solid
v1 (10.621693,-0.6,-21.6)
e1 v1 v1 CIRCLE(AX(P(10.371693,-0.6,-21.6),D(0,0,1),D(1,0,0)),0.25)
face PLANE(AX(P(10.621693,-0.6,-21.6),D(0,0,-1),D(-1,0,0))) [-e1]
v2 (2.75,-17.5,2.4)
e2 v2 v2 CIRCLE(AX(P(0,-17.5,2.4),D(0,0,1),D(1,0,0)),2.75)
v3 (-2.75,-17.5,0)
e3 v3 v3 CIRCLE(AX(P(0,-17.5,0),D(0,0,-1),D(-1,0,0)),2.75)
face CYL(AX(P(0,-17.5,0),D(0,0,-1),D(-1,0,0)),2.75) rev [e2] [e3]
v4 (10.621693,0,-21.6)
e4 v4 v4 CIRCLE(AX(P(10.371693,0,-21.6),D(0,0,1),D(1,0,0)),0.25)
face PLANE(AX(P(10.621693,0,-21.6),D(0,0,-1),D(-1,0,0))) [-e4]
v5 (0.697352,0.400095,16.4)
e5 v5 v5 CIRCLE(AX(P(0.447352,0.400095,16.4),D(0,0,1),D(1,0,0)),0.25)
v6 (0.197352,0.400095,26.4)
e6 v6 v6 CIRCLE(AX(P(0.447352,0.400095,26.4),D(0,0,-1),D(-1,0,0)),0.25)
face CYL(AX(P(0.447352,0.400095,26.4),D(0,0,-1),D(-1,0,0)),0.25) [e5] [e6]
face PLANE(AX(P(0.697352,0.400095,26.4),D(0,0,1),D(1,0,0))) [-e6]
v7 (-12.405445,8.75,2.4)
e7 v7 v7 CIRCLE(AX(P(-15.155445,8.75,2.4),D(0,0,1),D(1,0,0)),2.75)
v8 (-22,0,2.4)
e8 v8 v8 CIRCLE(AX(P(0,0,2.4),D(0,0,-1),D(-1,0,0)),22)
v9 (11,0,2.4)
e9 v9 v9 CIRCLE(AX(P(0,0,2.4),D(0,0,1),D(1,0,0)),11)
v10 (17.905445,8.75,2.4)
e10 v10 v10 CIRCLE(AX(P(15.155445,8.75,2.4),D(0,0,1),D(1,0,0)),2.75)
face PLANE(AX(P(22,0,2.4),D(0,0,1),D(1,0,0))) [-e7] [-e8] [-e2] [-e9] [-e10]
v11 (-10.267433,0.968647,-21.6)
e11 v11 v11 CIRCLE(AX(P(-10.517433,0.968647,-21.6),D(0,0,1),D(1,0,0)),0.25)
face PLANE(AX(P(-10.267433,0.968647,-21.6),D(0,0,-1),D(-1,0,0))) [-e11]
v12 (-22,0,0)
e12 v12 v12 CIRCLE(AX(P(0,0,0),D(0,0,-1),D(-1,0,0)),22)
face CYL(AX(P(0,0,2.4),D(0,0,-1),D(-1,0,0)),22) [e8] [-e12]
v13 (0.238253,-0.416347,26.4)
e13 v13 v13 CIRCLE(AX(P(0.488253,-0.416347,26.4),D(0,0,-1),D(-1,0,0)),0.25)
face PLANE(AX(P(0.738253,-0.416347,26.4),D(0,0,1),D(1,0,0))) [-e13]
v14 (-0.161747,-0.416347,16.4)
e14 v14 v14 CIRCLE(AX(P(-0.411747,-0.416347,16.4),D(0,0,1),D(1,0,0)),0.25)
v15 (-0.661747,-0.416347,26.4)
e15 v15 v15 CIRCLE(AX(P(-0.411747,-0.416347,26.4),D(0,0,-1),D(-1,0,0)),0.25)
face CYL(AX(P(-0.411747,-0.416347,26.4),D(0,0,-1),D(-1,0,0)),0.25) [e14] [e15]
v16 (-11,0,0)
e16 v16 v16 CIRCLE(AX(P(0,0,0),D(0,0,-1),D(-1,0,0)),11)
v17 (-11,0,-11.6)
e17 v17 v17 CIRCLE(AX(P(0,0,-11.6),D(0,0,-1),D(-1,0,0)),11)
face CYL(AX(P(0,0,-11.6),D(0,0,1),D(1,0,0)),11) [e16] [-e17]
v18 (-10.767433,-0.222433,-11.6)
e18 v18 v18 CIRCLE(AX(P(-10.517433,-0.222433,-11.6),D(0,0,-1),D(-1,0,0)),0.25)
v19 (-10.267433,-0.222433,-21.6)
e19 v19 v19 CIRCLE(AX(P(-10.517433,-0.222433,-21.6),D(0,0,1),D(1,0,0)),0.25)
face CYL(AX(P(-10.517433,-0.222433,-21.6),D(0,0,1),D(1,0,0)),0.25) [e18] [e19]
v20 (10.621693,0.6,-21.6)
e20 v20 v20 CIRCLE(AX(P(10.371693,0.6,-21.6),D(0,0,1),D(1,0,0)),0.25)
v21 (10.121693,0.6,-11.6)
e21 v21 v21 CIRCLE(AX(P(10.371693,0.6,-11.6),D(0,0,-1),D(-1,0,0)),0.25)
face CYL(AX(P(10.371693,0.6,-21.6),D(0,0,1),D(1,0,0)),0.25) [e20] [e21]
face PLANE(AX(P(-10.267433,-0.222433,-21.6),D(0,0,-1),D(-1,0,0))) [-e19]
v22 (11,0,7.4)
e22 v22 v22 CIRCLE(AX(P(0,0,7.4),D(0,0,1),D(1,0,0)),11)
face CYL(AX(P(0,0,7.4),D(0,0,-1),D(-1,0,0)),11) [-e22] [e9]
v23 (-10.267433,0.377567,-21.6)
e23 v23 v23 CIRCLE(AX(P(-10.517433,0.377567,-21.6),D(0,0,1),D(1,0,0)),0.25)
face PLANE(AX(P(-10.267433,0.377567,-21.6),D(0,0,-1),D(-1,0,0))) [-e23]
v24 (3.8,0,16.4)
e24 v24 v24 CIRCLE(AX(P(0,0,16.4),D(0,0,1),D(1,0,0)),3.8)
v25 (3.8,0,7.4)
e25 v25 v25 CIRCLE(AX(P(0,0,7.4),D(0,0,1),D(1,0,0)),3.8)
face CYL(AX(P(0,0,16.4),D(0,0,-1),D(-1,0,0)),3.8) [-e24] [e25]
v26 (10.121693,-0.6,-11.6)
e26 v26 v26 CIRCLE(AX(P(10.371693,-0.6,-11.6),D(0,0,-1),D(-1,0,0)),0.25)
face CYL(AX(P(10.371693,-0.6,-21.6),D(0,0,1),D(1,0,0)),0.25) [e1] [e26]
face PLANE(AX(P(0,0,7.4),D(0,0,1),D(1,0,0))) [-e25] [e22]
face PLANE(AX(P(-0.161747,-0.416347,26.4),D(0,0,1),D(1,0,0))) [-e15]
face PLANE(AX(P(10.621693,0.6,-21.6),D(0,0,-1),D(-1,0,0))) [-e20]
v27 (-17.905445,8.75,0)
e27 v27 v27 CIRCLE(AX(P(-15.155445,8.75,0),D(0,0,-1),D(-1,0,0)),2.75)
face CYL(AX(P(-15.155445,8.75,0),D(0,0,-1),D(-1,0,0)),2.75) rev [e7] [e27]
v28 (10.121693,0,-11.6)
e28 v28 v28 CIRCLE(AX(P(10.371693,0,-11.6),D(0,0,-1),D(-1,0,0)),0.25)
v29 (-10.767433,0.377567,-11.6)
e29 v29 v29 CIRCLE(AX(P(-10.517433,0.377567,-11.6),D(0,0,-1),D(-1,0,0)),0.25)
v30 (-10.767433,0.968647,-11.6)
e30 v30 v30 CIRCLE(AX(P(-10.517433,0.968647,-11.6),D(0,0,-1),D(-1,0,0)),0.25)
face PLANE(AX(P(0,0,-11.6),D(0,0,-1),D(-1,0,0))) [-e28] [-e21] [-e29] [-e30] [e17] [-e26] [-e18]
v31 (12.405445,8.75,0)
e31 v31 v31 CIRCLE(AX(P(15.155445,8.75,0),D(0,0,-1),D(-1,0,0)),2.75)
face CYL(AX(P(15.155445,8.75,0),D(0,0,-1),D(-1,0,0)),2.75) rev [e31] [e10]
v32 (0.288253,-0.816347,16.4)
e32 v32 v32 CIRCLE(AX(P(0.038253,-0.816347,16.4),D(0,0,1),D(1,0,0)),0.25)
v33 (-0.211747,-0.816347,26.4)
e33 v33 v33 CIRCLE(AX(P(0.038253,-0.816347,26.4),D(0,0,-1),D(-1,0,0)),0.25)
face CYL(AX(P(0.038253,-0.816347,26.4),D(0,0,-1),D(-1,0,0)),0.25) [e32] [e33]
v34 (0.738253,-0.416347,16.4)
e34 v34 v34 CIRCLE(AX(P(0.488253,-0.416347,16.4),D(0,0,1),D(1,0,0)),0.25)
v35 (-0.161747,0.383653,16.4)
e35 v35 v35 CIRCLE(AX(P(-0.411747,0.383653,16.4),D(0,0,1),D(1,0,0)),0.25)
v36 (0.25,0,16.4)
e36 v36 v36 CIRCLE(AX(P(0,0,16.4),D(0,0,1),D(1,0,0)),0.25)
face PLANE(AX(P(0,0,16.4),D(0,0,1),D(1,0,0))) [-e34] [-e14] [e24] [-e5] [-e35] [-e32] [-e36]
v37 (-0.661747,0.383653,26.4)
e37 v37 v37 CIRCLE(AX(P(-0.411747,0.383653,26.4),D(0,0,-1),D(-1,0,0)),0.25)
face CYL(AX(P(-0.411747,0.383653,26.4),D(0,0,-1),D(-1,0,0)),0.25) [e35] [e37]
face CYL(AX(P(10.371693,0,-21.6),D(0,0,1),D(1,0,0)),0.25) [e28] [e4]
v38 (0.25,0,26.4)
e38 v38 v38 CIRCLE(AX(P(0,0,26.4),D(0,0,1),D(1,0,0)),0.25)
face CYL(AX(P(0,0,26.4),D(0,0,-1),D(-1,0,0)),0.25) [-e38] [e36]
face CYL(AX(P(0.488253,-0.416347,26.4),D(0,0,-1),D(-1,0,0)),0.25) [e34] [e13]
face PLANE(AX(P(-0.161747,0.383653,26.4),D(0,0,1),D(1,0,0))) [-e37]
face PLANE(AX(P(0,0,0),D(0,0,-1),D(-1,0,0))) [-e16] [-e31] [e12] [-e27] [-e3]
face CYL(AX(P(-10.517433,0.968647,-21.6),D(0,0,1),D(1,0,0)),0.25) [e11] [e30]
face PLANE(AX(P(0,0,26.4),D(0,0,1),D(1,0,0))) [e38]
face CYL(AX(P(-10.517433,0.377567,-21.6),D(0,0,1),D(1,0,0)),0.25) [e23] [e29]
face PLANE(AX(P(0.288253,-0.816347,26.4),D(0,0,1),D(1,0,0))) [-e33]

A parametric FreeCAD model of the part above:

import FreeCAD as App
import Part
import Sketcher
from FreeCAD import Vector
Q = App.Units.Quantity

doc = App.newDocument("Part")
body = doc.addObject("PartDesign::Body", "Body")

# Sketch on XZ plane
sketch1 = body.newObject("Sketcher::SketchObject", "Sketch")
sketch1.AttachmentSupport = (doc.getObject("XZ_Plane"), [""])
sketch1.MapMode = "FlatFace"
sketch1.addGeometry(Part.LineSegment(Vector(0, 2.4, 0), Vector(0, 0, 0)), False)
sketch1.addGeometry(Part.LineSegment(Vector(0, 0, 0), Vector(22, 0, 0)), False)
sketch1.addGeometry(Part.LineSegment(Vector(22, 0, 0), Vector(22, 2.4, 0)), False)
sketch1.addGeometry(Part.LineSegment(Vector(22, 2.4, 0), Vector(0, 2.4, 0)), False)
sketch1.addConstraint(Sketcher.Constraint("Coincident", 0, 2, 1, 1))
sketch1.addConstraint(Sketcher.Constraint("Coincident", 1, 2, 2, 1))
sketch1.addConstraint(Sketcher.Constraint("Coincident", 2, 2, 3, 1))
sketch1.addConstraint(Sketcher.Constraint("Coincident", 3, 2, 0, 1))
sketch1.addConstraint(Sketcher.Constraint("Vertical", 0))
sketch1.addConstraint(Sketcher.Constraint("Horizontal", 1))
sketch1.addConstraint(Sketcher.Constraint("Vertical", 2))
sketch1.addConstraint(Sketcher.Constraint("Horizontal", 3))
sketch1.addConstraint(Sketcher.Constraint("Coincident", 0, 2, -1, 1))
sketch1.addConstraint(Sketcher.Constraint("DistanceX", 1, 1, 1, 2, Q("22 mm")))
sketch1.addConstraint(Sketcher.Constraint("DistanceY", 0, 2, 0, 1, Q("2.4 mm")))
revolution = body.newObject("PartDesign::Revolution", "Revolution")
revolution.Profile = sketch1
revolution.ReferenceAxis = (sketch1, ["V_Axis"])
revolution.Angle = 360

# Sketch on XY plane
sketch2 = body.newObject("Sketcher::SketchObject", "Sketch001")
sketch2.AttachmentSupport = (doc.getObject("XY_Plane"), [""])
sketch2.MapMode = "FlatFace"
sketch2.AttachmentOffset = App.Placement(Vector(0, 0, 2.4), App.Rotation())
sketch2.addGeometry(Part.Circle(Vector(0, 0, 0), Vector(0, 0, 1), 11), False)
sketch2.addConstraint(Sketcher.Constraint("Coincident", 0, 3, -1, 1))
sketch2.addConstraint(Sketcher.Constraint("Diameter", 0, Q("22 mm")))
pad1 = body.newObject("PartDesign::Pad", "Pad")
pad1.Profile = sketch2
pad1.Length = 5

# Sketch on XY plane
sketch3 = body.newObject("Sketcher::SketchObject", "Sketch002")
sketch3.AttachmentSupport = (doc.getObject("XY_Plane"), [""])
sketch3.MapMode = "FlatFace"
sketch3.AttachmentOffset = App.Placement(Vector(0, 0, 7.4), App.Rotation())
sketch3.addGeometry(Part.Circle(Vector(0, 0, 0), Vector(0, 0, 1), 3.8), False)
sketch3.addConstraint(Sketcher.Constraint("Coincident", 0, 3, -1, 1))
sketch3.addConstraint(Sketcher.Constraint("Diameter", 0, Q("7.6 mm")))
pad2 = body.newObject("PartDesign::Pad", "Pad001")
pad2.Profile = sketch3
pad2.Length = 9

# Sketch on XY plane
sketch4 = body.newObject("Sketcher::SketchObject", "Sketch003")
sketch4.AttachmentSupport = (doc.getObject("XY_Plane"), [""])
sketch4.MapMode = "FlatFace"
sketch4.AttachmentOffset = App.Placement(Vector(0, 0, 16.4), App.Rotation())
sketch4.addGeometry(Part.Circle(Vector(0, 0, 0), Vector(0, 0, 1), 0.25), False)
sketch4.addConstraint(Sketcher.Constraint("Coincident", 0, 3, -1, 1))
sketch4.addConstraint(Sketcher.Constraint("Diameter", 0, Q("0.5 mm")))
pad3 = body.newObject("PartDesign::Pad", "Pad002")
pad3.Profile = sketch4
pad3.Length = 10

# Sketch on XY plane
sketch5 = body.newObject("Sketcher::SketchObject", "Sketch004")
sketch5.AttachmentSupport = (doc.getObject("XY_Plane"), [""])
sketch5.MapMode = "FlatFace"
sketch5.addGeometry(Part.Circle(Vector(0, 0, 0), Vector(0, 0, 1), 11), False)
sketch5.addConstraint(Sketcher.Constraint("Coincident", 0, 3, -1, 1))
sketch5.addConstraint(Sketcher.Constraint("Diameter", 0, Q("22 mm")))
pad4 = body.newObject("PartDesign::Pad", "Pad003")
pad4.Profile = sketch5
pad4.Length = 11.6
pad4.Reversed = True

# Sketch on XZ plane
sketch6 = body.newObject("Sketcher::SketchObject", "Sketch005")
sketch6.AttachmentSupport = (doc.getObject("XZ_Plane"), [""])
sketch6.MapMode = "FlatFace"
sketch6.AttachmentOffset = App.Placement(Vector(0, 0, 0.816347), App.Rotation())
sketch6.addGeometry(Part.LineSegment(Vector(0.04, 26.4, 0), Vector(0.04, 16.4, 0)), False)
sketch6.addGeometry(Part.LineSegment(Vector(0.04, 16.4, 0), Vector(0.29, 16.4, 0)), False)
sketch6.addGeometry(Part.LineSegment(Vector(0.29, 16.4, 0), Vector(0.29, 26.4, 0)), False)
sketch6.addGeometry(Part.LineSegment(Vector(0.29, 26.4, 0), Vector(0.04, 26.4, 0)), False)
sketch6.addGeometry(Part.LineSegment(Vector(0.04, 26.4, 0), Vector(0.04, 16.4, 0)), True)  # axis
sketch6.addConstraint(Sketcher.Constraint("Coincident", 0, 2, 1, 1))
sketch6.addConstraint(Sketcher.Constraint("Coincident", 1, 2, 2, 1))
sketch6.addConstraint(Sketcher.Constraint("Coincident", 2, 2, 3, 1))
sketch6.addConstraint(Sketcher.Constraint("Coincident", 3, 2, 0, 1))
sketch6.addConstraint(Sketcher.Constraint("Vertical", 0))
sketch6.addConstraint(Sketcher.Constraint("Horizontal", 1))
sketch6.addConstraint(Sketcher.Constraint("Vertical", 2))
sketch6.addConstraint(Sketcher.Constraint("Horizontal", 3))
sketch6.addConstraint(Sketcher.Constraint("Vertical", 4))
sketch6.addConstraint(Sketcher.Constraint("Coincident", 4, 1, 3, 2))
sketch6.addConstraint(Sketcher.Constraint("Horizontal", 1, 2, 4, 2))
sketch6.addConstraint(Sketcher.Constraint("DistanceY", 0, 2, 0, 1, Q("10 mm")))
sketch6.addConstraint(Sketcher.Constraint("DistanceX", 1, 1, 1, 2, Q("0.25 mm")))
sketch6.addConstraint(Sketcher.Constraint("DistanceY", -1, 1, 0, 2, Q("16.4 mm")))
sketch6.addConstraint(Sketcher.Constraint("DistanceX", -1, 1, 0, 2, Q("0.038253 mm")))
revolution2 = body.newObject("PartDesign::Revolution", "Revolution001")
revolution2.Profile = sketch6
revolution2.ReferenceAxis = (sketch6, ["Axis0"])
revolution2.Angle = 360

# Sketch on XZ plane
sketch7 = body.newObject("Sketcher::SketchObject", "Sketch006")
sketch7.AttachmentSupport = (doc.getObject("XZ_Plane"), [""])
sketch7.MapMode = "FlatFace"
sketch7.AttachmentOffset = App.Placement(Vector(0, 0, 0.416347), App.Rotation())
sketch7.addGeometry(Part.LineSegment(Vector(0.49, 26.4, 0), Vector(0.49, 16.4, 0)), False)
sketch7.addGeometry(Part.LineSegment(Vector(0.49, 16.4, 0), Vector(0.74, 16.4, 0)), False)
sketch7.addGeometry(Part.LineSegment(Vector(0.74, 16.4, 0), Vector(0.74, 26.4, 0)), False)
sketch7.addGeometry(Part.LineSegment(Vector(0.74, 26.4, 0), Vector(0.49, 26.4, 0)), False)
sketch7.addGeometry(Part.LineSegment(Vector(0.49, 26.4, 0), Vector(0.49, 16.4, 0)), True)  # axis
sketch7.addConstraint(Sketcher.Constraint("Coincident", 0, 2, 1, 1))
sketch7.addConstraint(Sketcher.Constraint("Coincident", 1, 2, 2, 1))
sketch7.addConstraint(Sketcher.Constraint("Coincident", 2, 2, 3, 1))
sketch7.addConstraint(Sketcher.Constraint("Coincident", 3, 2, 0, 1))
sketch7.addConstraint(Sketcher.Constraint("Vertical", 0))
sketch7.addConstraint(Sketcher.Constraint("Horizontal", 1))
sketch7.addConstraint(Sketcher.Constraint("Vertical", 2))
sketch7.addConstraint(Sketcher.Constraint("Horizontal", 3))
sketch7.addConstraint(Sketcher.Constraint("Vertical", 4))
sketch7.addConstraint(Sketcher.Constraint("Coincident", 4, 1, 3, 2))
sketch7.addConstraint(Sketcher.Constraint("Horizontal", 1, 2, 4, 2))
sketch7.addConstraint(Sketcher.Constraint("DistanceY", 0, 2, 0, 1, Q("10 mm")))
sketch7.addConstraint(Sketcher.Constraint("DistanceX", 1, 1, 1, 2, Q("0.25 mm")))
sketch7.addConstraint(Sketcher.Constraint("DistanceY", -1, 1, 0, 2, Q("16.4 mm")))
sketch7.addConstraint(Sketcher.Constraint("DistanceX", -1, 1, 0, 2, Q("0.488253 mm")))
revolution3 = body.newObject("PartDesign::Revolution", "Revolution002")
revolution3.Profile = sketch7
revolution3.ReferenceAxis = (sketch7, ["Axis0"])
revolution3.Angle = 360

# Sketch on XZ plane
sketch8 = body.newObject("Sketcher::SketchObject", "Sketch007")
sketch8.AttachmentSupport = (doc.getObject("XZ_Plane"), [""])
sketch8.MapMode = "FlatFace"
sketch8.AttachmentOffset = App.Placement(Vector(0, 0, -0.383653), App.Rotation())
sketch8.addGeometry(Part.LineSegment(Vector(-0.41, 26.4, 0), Vector(-0.41, 16.4, 0)), False)
sketch8.addGeometry(Part.LineSegment(Vector(-0.41, 16.4, 0), Vector(-0.16, 16.4, 0)), False)
sketch8.addGeometry(Part.LineSegment(Vector(-0.16, 16.4, 0), Vector(-0.16, 26.4, 0)), False)
sketch8.addGeometry(Part.LineSegment(Vector(-0.16, 26.4, 0), Vector(-0.41, 26.4, 0)), False)
sketch8.addGeometry(Part.LineSegment(Vector(-0.41, 26.4, 0), Vector(-0.41, 16.4, 0)), True)  # axis
sketch8.addConstraint(Sketcher.Constraint("Coincident", 0, 2, 1, 1))
sketch8.addConstraint(Sketcher.Constraint("Coincident", 1, 2, 2, 1))
sketch8.addConstraint(Sketcher.Constraint("Coincident", 2, 2, 3, 1))
sketch8.addConstraint(Sketcher.Constraint("Coincident", 3, 2, 0, 1))
sketch8.addConstraint(Sketcher.Constraint("Vertical", 0))
sketch8.addConstraint(Sketcher.Constraint("Horizontal", 1))
sketch8.addConstraint(Sketcher.Constraint("Vertical", 2))
sketch8.addConstraint(Sketcher.Constraint("Horizontal", 3))
sketch8.addConstraint(Sketcher.Constraint("Vertical", 4))
sketch8.addConstraint(Sketcher.Constraint("Coincident", 4, 1, 3, 2))
sketch8.addConstraint(Sketcher.Constraint("Horizontal", 1, 2, 4, 2))
sketch8.addConstraint(Sketcher.Constraint("DistanceY", 0, 2, 0, 1, Q("10 mm")))
sketch8.addConstraint(Sketcher.Constraint("DistanceX", 1, 1, 1, 2, Q("0.25 mm")))
sketch8.addConstraint(Sketcher.Constraint("DistanceY", -1, 1, 0, 2, Q("16.4 mm")))
sketch8.addConstraint(Sketcher.Constraint("DistanceX", 0, 2, -1, 1, Q("0.411747 mm")))
revolution4 = body.newObject("PartDesign::Revolution", "Revolution003")
revolution4.Profile = sketch8
revolution4.ReferenceAxis = (sketch8, ["Axis0"])
revolution4.Angle = 360

# Sketch on XZ plane
sketch9 = body.newObject("Sketcher::SketchObject", "Sketch008")
sketch9.AttachmentSupport = (doc.getObject("XZ_Plane"), [""])
sketch9.MapMode = "FlatFace"
sketch9.AttachmentOffset = App.Placement(Vector(0, 0, -0.400095), App.Rotation())
sketch9.addGeometry(Part.LineSegment(Vector(0.45, 26.4, 0), Vector(0.45, 16.4, 0)), False)
sketch9.addGeometry(Part.LineSegment(Vector(0.45, 16.4, 0), Vector(0.7, 16.4, 0)), False)
sketch9.addGeometry(Part.LineSegment(Vector(0.7, 16.4, 0), Vector(0.7, 26.4, 0)), False)
sketch9.addGeometry(Part.LineSegment(Vector(0.7, 26.4, 0), Vector(0.45, 26.4, 0)), False)
sketch9.addGeometry(Part.LineSegment(Vector(0.45, 26.4, 0), Vector(0.45, 16.4, 0)), True)  # axis
sketch9.addConstraint(Sketcher.Constraint("Coincident", 0, 2, 1, 1))
sketch9.addConstraint(Sketcher.Constraint("Coincident", 1, 2, 2, 1))
sketch9.addConstraint(Sketcher.Constraint("Coincident", 2, 2, 3, 1))
sketch9.addConstraint(Sketcher.Constraint("Coincident", 3, 2, 0, 1))
sketch9.addConstraint(Sketcher.Constraint("Vertical", 0))
sketch9.addConstraint(Sketcher.Constraint("Horizontal", 1))
sketch9.addConstraint(Sketcher.Constraint("Vertical", 2))
sketch9.addConstraint(Sketcher.Constraint("Horizontal", 3))
sketch9.addConstraint(Sketcher.Constraint("Vertical", 4))
sketch9.addConstraint(Sketcher.Constraint("Coincident", 4, 1, 3, 2))
sketch9.addConstraint(Sketcher.Constraint("Horizontal", 1, 2, 4, 2))
sketch9.addConstraint(Sketcher.Constraint("DistanceY", 0, 2, 0, 1, Q("10 mm")))
sketch9.addConstraint(Sketcher.Constraint("DistanceX", 1, 1, 1, 2, Q("0.25 mm")))
sketch9.addConstraint(Sketcher.Constraint("DistanceY", -1, 1, 0, 2, Q("16.4 mm")))
sketch9.addConstraint(Sketcher.Constraint("DistanceX", -1, 1, 0, 2, Q("0.447352 mm")))
revolution5 = body.newObject("PartDesign::Revolution", "Revolution004")
revolution5.Profile = sketch9
revolution5.ReferenceAxis = (sketch9, ["Axis0"])
revolution5.Angle = 360

# Sketch on XZ plane
sketch10 = body.newObject("Sketcher::SketchObject", "Sketch009")
sketch10.AttachmentSupport = (doc.getObject("XZ_Plane"), [""])
sketch10.MapMode = "FlatFace"
sketch10.AttachmentOffset = App.Placement(Vector(0, 0, 0.222433), App.Rotation())
sketch10.addGeometry(Part.LineSegment(Vector(-10.52, -21.6, 0), Vector(-10.52, -11.6, 0)), False)
sketch10.addGeometry(Part.LineSegment(Vector(-10.52, -11.6, 0), Vector(-10.27, -11.6, 0)), False)
sketch10.addGeometry(Part.LineSegment(Vector(-10.27, -11.6, 0), Vector(-10.27, -21.6, 0)), False)
sketch10.addGeometry(Part.LineSegment(Vector(-10.27, -21.6, 0), Vector(-10.52, -21.6, 0)), False)
sketch10.addGeometry(Part.LineSegment(Vector(-10.52, -21.6, 0), Vector(-10.52, -11.6, 0)), True)  # axis
sketch10.addConstraint(Sketcher.Constraint("Coincident", 0, 2, 1, 1))
sketch10.addConstraint(Sketcher.Constraint("Coincident", 1, 2, 2, 1))
sketch10.addConstraint(Sketcher.Constraint("Coincident", 2, 2, 3, 1))
sketch10.addConstraint(Sketcher.Constraint("Coincident", 3, 2, 0, 1))
sketch10.addConstraint(Sketcher.Constraint("Vertical", 0))
sketch10.addConstraint(Sketcher.Constraint("Horizontal", 1))
sketch10.addConstraint(Sketcher.Constraint("Vertical", 2))
sketch10.addConstraint(Sketcher.Constraint("Horizontal", 3))
sketch10.addConstraint(Sketcher.Constraint("Vertical", 4))
sketch10.addConstraint(Sketcher.Constraint("Coincident", 4, 1, 3, 2))
sketch10.addConstraint(Sketcher.Constraint("Horizontal", 1, 2, 4, 2))
sketch10.addConstraint(Sketcher.Constraint("DistanceY", 0, 1, 0, 2, Q("10 mm")))
sketch10.addConstraint(Sketcher.Constraint("DistanceX", 1, 1, 1, 2, Q("0.25 mm")))
sketch10.addConstraint(Sketcher.Constraint("DistanceY", 0, 2, -1, 1, Q("11.6 mm")))
sketch10.addConstraint(Sketcher.Constraint("DistanceX", 0, 2, -1, 1, Q("10.517433 mm")))
revolution6 = body.newObject("PartDesign::Revolution", "Revolution005")
revolution6.Profile = sketch10
revolution6.ReferenceAxis = (sketch10, ["Axis0"])
revolution6.Angle = 360

# Sketch on XZ plane
sketch11 = body.newObject("Sketcher::SketchObject", "Sketch010")
sketch11.AttachmentSupport = (doc.getObject("XZ_Plane"), [""])
sketch11.MapMode = "FlatFace"
sketch11.AttachmentOffset = App.Placement(Vector(0, 0, -0.377567), App.Rotation())
sketch11.addGeometry(Part.LineSegment(Vector(-10.52, -21.6, 0), Vector(-10.52, -11.6, 0)), False)
sketch11.addGeometry(Part.LineSegment(Vector(-10.52, -11.6, 0), Vector(-10.27, -11.6, 0)), False)
sketch11.addGeometry(Part.LineSegment(Vector(-10.27, -11.6, 0), Vector(-10.27, -21.6, 0)), False)
sketch11.addGeometry(Part.LineSegment(Vector(-10.27, -21.6, 0), Vector(-10.52, -21.6, 0)), False)
sketch11.addGeometry(Part.LineSegment(Vector(-10.52, -21.6, 0), Vector(-10.52, -11.6, 0)), True)  # axis
sketch11.addConstraint(Sketcher.Constraint("Coincident", 0, 2, 1, 1))
sketch11.addConstraint(Sketcher.Constraint("Coincident", 1, 2, 2, 1))
sketch11.addConstraint(Sketcher.Constraint("Coincident", 2, 2, 3, 1))
sketch11.addConstraint(Sketcher.Constraint("Coincident", 3, 2, 0, 1))
sketch11.addConstraint(Sketcher.Constraint("Vertical", 0))
sketch11.addConstraint(Sketcher.Constraint("Horizontal", 1))
sketch11.addConstraint(Sketcher.Constraint("Vertical", 2))
sketch11.addConstraint(Sketcher.Constraint("Horizontal", 3))
sketch11.addConstraint(Sketcher.Constraint("Vertical", 4))
sketch11.addConstraint(Sketcher.Constraint("Coincident", 4, 1, 3, 2))
sketch11.addConstraint(Sketcher.Constraint("Horizontal", 1, 2, 4, 2))
sketch11.addConstraint(Sketcher.Constraint("DistanceY", 0, 1, 0, 2, Q("10 mm")))
sketch11.addConstraint(Sketcher.Constraint("DistanceX", 1, 1, 1, 2, Q("0.25 mm")))
sketch11.addConstraint(Sketcher.Constraint("DistanceY", 0, 2, -1, 1, Q("11.6 mm")))
sketch11.addConstraint(Sketcher.Constraint("DistanceX", 0, 2, -1, 1, Q("10.517433 mm")))
revolution7 = body.newObject("PartDesign::Revolution", "Revolution006")
revolution7.Profile = sketch11
revolution7.ReferenceAxis = (sketch11, ["Axis0"])
revolution7.Angle = 360

# Sketch on XZ plane
sketch12 = body.newObject("Sketcher::SketchObject", "Sketch011")
sketch12.AttachmentSupport = (doc.getObject("XZ_Plane"), [""])
sketch12.MapMode = "FlatFace"
sketch12.AttachmentOffset = App.Placement(Vector(0, 0, -0.6), App.Rotation())
sketch12.addGeometry(Part.LineSegment(Vector(10.37, -21.6, 0), Vector(10.37, -11.6, 0)), False)
sketch12.addGeometry(Part.LineSegment(Vector(10.37, -11.6, 0), Vector(10.62, -11.6, 0)), False)
sketch12.addGeometry(Part.LineSegment(Vector(10.62, -11.6, 0), Vector(10.62, -21.6, 0)), False)
sketch12.addGeometry(Part.LineSegment(Vector(10.62, -21.6, 0), Vector(10.37, -21.6, 0)), False)
sketch12.addGeometry(Part.LineSegment(Vector(10.37, -21.6, 0), Vector(10.37, -11.6, 0)), True)  # axis
sketch12.addConstraint(Sketcher.Constraint("Coincident", 0, 2, 1, 1))
sketch12.addConstraint(Sketcher.Constraint("Coincident", 1, 2, 2, 1))
sketch12.addConstraint(Sketcher.Constraint("Coincident", 2, 2, 3, 1))
sketch12.addConstraint(Sketcher.Constraint("Coincident", 3, 2, 0, 1))
sketch12.addConstraint(Sketcher.Constraint("Vertical", 0))
sketch12.addConstraint(Sketcher.Constraint("Horizontal", 1))
sketch12.addConstraint(Sketcher.Constraint("Vertical", 2))
sketch12.addConstraint(Sketcher.Constraint("Horizontal", 3))
sketch12.addConstraint(Sketcher.Constraint("Vertical", 4))
sketch12.addConstraint(Sketcher.Constraint("Coincident", 4, 1, 3, 2))
sketch12.addConstraint(Sketcher.Constraint("Horizontal", 1, 2, 4, 2))
sketch12.addConstraint(Sketcher.Constraint("DistanceY", 0, 1, 0, 2, Q("10 mm")))
sketch12.addConstraint(Sketcher.Constraint("DistanceX", 1, 1, 1, 2, Q("0.25 mm")))
sketch12.addConstraint(Sketcher.Constraint("DistanceY", 0, 2, -1, 1, Q("11.6 mm")))
sketch12.addConstraint(Sketcher.Constraint("DistanceX", -1, 1, 0, 2, Q("10.371693 mm")))
revolution8 = body.newObject("PartDesign::Revolution", "Revolution007")
revolution8.Profile = sketch12
revolution8.ReferenceAxis = (sketch12, ["Axis0"])
revolution8.Angle = 360

# Sketch on XZ plane
sketch13 = body.newObject("Sketcher::SketchObject", "Sketch012")
sketch13.AttachmentSupport = (doc.getObject("XZ_Plane"), [""])
sketch13.MapMode = "FlatFace"
sketch13.addGeometry(Part.LineSegment(Vector(10.37, -21.6, 0), Vector(10.37, -11.6, 0)), False)
sketch13.addGeometry(Part.LineSegment(Vector(10.37, -11.6, 0), Vector(10.62, -11.6, 0)), False)
sketch13.addGeometry(Part.LineSegment(Vector(10.62, -11.6, 0), Vector(10.62, -21.6, 0)), False)
sketch13.addGeometry(Part.LineSegment(Vector(10.62, -21.6, 0), Vector(10.37, -21.6, 0)), False)
sketch13.addGeometry(Part.LineSegment(Vector(10.37, -21.6, 0), Vector(10.37, -11.6, 0)), True)  # axis
sketch13.addConstraint(Sketcher.Constraint("Coincident", 0, 2, 1, 1))
sketch13.addConstraint(Sketcher.Constraint("Coincident", 1, 2, 2, 1))
sketch13.addConstraint(Sketcher.Constraint("Coincident", 2, 2, 3, 1))
sketch13.addConstraint(Sketcher.Constraint("Coincident", 3, 2, 0, 1))
sketch13.addConstraint(Sketcher.Constraint("Vertical", 0))
sketch13.addConstraint(Sketcher.Constraint("Horizontal", 1))
sketch13.addConstraint(Sketcher.Constraint("Vertical", 2))
sketch13.addConstraint(Sketcher.Constraint("Horizontal", 3))
sketch13.addConstraint(Sketcher.Constraint("Vertical", 4))
sketch13.addConstraint(Sketcher.Constraint("Coincident", 4, 1, 3, 2))
sketch13.addConstraint(Sketcher.Constraint("Horizontal", 1, 2, 4, 2))
sketch13.addConstraint(Sketcher.Constraint("DistanceY", 0, 1, 0, 2, Q("10 mm")))
sketch13.addConstraint(Sketcher.Constraint("DistanceX", 1, 1, 1, 2, Q("0.25 mm")))
sketch13.addConstraint(Sketcher.Constraint("DistanceY", 0, 2, -1, 1, Q("11.6 mm")))
sketch13.addConstraint(Sketcher.Constraint("DistanceX", -1, 1, 0, 2, Q("10.371693 mm")))
revolution9 = body.newObject("PartDesign::Revolution", "Revolution008")
revolution9.Profile = sketch13
revolution9.ReferenceAxis = (sketch13, ["Axis0"])
revolution9.Angle = 360

# Sketch on XZ plane
sketch14 = body.newObject("Sketcher::SketchObject", "Sketch013")
sketch14.AttachmentSupport = (doc.getObject("XZ_Plane"), [""])
sketch14.MapMode = "FlatFace"
sketch14.AttachmentOffset = App.Placement(Vector(0, 0, 0.6), App.Rotation())
sketch14.addGeometry(Part.LineSegment(Vector(10.37, -21.6, 0), Vector(10.37, -11.6, 0)), False)
sketch14.addGeometry(Part.LineSegment(Vector(10.37, -11.6, 0), Vector(10.62, -11.6, 0)), False)
sketch14.addGeometry(Part.LineSegment(Vector(10.62, -11.6, 0), Vector(10.62, -21.6, 0)), False)
sketch14.addGeometry(Part.LineSegment(Vector(10.62, -21.6, 0), Vector(10.37, -21.6, 0)), False)
sketch14.addGeometry(Part.LineSegment(Vector(10.37, -21.6, 0), Vector(10.37, -11.6, 0)), True)  # axis
sketch14.addConstraint(Sketcher.Constraint("Coincident", 0, 2, 1, 1))
sketch14.addConstraint(Sketcher.Constraint("Coincident", 1, 2, 2, 1))
sketch14.addConstraint(Sketcher.Constraint("Coincident", 2, 2, 3, 1))
sketch14.addConstraint(Sketcher.Constraint("Coincident", 3, 2, 0, 1))
sketch14.addConstraint(Sketcher.Constraint("Vertical", 0))
sketch14.addConstraint(Sketcher.Constraint("Horizontal", 1))
sketch14.addConstraint(Sketcher.Constraint("Vertical", 2))
sketch14.addConstraint(Sketcher.Constraint("Horizontal", 3))
sketch14.addConstraint(Sketcher.Constraint("Vertical", 4))
sketch14.addConstraint(Sketcher.Constraint("Coincident", 4, 1, 3, 2))
sketch14.addConstraint(Sketcher.Constraint("Horizontal", 1, 2, 4, 2))
sketch14.addConstraint(Sketcher.Constraint("DistanceY", 0, 1, 0, 2, Q("10 mm")))
sketch14.addConstraint(Sketcher.Constraint("DistanceX", 1, 1, 1, 2, Q("0.25 mm")))
sketch14.addConstraint(Sketcher.Constraint("DistanceY", 0, 2, -1, 1, Q("11.6 mm")))
sketch14.addConstraint(Sketcher.Constraint("DistanceX", -1, 1, 0, 2, Q("10.371693 mm")))
revolution10 = body.newObject("PartDesign::Revolution", "Revolution009")
revolution10.Profile = sketch14
revolution10.ReferenceAxis = (sketch14, ["Axis0"])
revolution10.Angle = 360

# Sketch on XZ plane
sketch15 = body.newObject("Sketcher::SketchObject", "Sketch014")
sketch15.AttachmentSupport = (doc.getObject("XZ_Plane"), [""])
sketch15.MapMode = "FlatFace"
sketch15.AttachmentOffset = App.Placement(Vector(0, 0, -0.968647), App.Rotation())
sketch15.addGeometry(Part.LineSegment(Vector(-10.52, -21.6, 0), Vector(-10.52, -11.6, 0)), False)
sketch15.addGeometry(Part.LineSegment(Vector(-10.52, -11.6, 0), Vector(-10.27, -11.6, 0)), False)
sketch15.addGeometry(Part.LineSegment(Vector(-10.27, -11.6, 0), Vector(-10.27, -21.6, 0)), False)
sketch15.addGeometry(Part.LineSegment(Vector(-10.27, -21.6, 0), Vector(-10.52, -21.6, 0)), False)
sketch15.addGeometry(Part.LineSegment(Vector(-10.52, -21.6, 0), Vector(-10.52, -11.6, 0)), True)  # axis
sketch15.addConstraint(Sketcher.Constraint("Coincident", 0, 2, 1, 1))
sketch15.addConstraint(Sketcher.Constraint("Coincident", 1, 2, 2, 1))
sketch15.addConstraint(Sketcher.Constraint("Coincident", 2, 2, 3, 1))
sketch15.addConstraint(Sketcher.Constraint("Coincident", 3, 2, 0, 1))
sketch15.addConstraint(Sketcher.Constraint("Vertical", 0))
sketch15.addConstraint(Sketcher.Constraint("Horizontal", 1))
sketch15.addConstraint(Sketcher.Constraint("Vertical", 2))
sketch15.addConstraint(Sketcher.Constraint("Horizontal", 3))
sketch15.addConstraint(Sketcher.Constraint("Vertical", 4))
sketch15.addConstraint(Sketcher.Constraint("Coincident", 4, 1, 3, 2))
sketch15.addConstraint(Sketcher.Constraint("Horizontal", 1, 2, 4, 2))
sketch15.addConstraint(Sketcher.Constraint("DistanceY", 0, 1, 0, 2, Q("10 mm")))
sketch15.addConstraint(Sketcher.Constraint("DistanceX", 1, 1, 1, 2, Q("0.25 mm")))
sketch15.addConstraint(Sketcher.Constraint("DistanceY", 0, 2, -1, 1, Q("11.6 mm")))
sketch15.addConstraint(Sketcher.Constraint("DistanceX", 0, 2, -1, 1, Q("10.517433 mm")))
revolution11 = body.newObject("PartDesign::Revolution", "Revolution010")
revolution11.Profile = sketch15
revolution11.ReferenceAxis = (sketch15, ["Axis0"])
revolution11.Angle = 360

# Sketch on XZ plane
sketch16 = body.newObject("Sketcher::SketchObject", "Sketch015")
sketch16.AttachmentSupport = (doc.getObject("XZ_Plane"), [""])
sketch16.MapMode = "FlatFace"
sketch16.AttachmentOffset = App.Placement(Vector(0, 0, 0.416347), App.Rotation())
sketch16.addGeometry(Part.LineSegment(Vector(-0.41, 26.4, 0), Vector(-0.41, 16.4, 0)), False)
sketch16.addGeometry(Part.LineSegment(Vector(-0.41, 16.4, 0), Vector(-0.16, 16.4, 0)), False)
sketch16.addGeometry(Part.LineSegment(Vector(-0.16, 16.4, 0), Vector(-0.16, 26.4, 0)), False)
sketch16.addGeometry(Part.LineSegment(Vector(-0.16, 26.4, 0), Vector(-0.41, 26.4, 0)), False)
sketch16.addGeometry(Part.LineSegment(Vector(-0.41, 26.4, 0), Vector(-0.41, 16.4, 0)), True)  # axis
sketch16.addConstraint(Sketcher.Constraint("Coincident", 0, 2, 1, 1))
sketch16.addConstraint(Sketcher.Constraint("Coincident", 1, 2, 2, 1))
sketch16.addConstraint(Sketcher.Constraint("Coincident", 2, 2, 3, 1))
sketch16.addConstraint(Sketcher.Constraint("Coincident", 3, 2, 0, 1))
sketch16.addConstraint(Sketcher.Constraint("Vertical", 0))
sketch16.addConstraint(Sketcher.Constraint("Horizontal", 1))
sketch16.addConstraint(Sketcher.Constraint("Vertical", 2))
sketch16.addConstraint(Sketcher.Constraint("Horizontal", 3))
sketch16.addConstraint(Sketcher.Constraint("Vertical", 4))
sketch16.addConstraint(Sketcher.Constraint("Coincident", 4, 1, 3, 2))
sketch16.addConstraint(Sketcher.Constraint("Horizontal", 1, 2, 4, 2))
sketch16.addConstraint(Sketcher.Constraint("DistanceY", 0, 2, 0, 1, Q("10 mm")))
sketch16.addConstraint(Sketcher.Constraint("DistanceX", 1, 1, 1, 2, Q("0.25 mm")))
sketch16.addConstraint(Sketcher.Constraint("DistanceY", -1, 1, 0, 2, Q("16.4 mm")))
sketch16.addConstraint(Sketcher.Constraint("DistanceX", 0, 2, -1, 1, Q("0.411747 mm")))
revolution12 = body.newObject("PartDesign::Revolution", "Revolution011")
revolution12.Profile = sketch16
revolution12.ReferenceAxis = (sketch16, ["Axis0"])
revolution12.Angle = 360

# Sketch on XY plane
sketch17 = body.newObject("Sketcher::SketchObject", "Sketch016")
sketch17.AttachmentSupport = (doc.getObject("XY_Plane"), [""])
sketch17.MapMode = "FlatFace"
sketch17.addGeometry(Part.Circle(Vector(15.2, 8.8, 0), Vector(0, 0, 1), 2.8), False)
sketch17.addGeometry(Part.Circle(Vector(-15.2, 8.8, 0), Vector(0, 0, 1), 2.8), False)
sketch17.addGeometry(Part.Circle(Vector(0, -17.5, 0), Vector(0, 0, 1), 2.8), False)
sketch17.addConstraint(Sketcher.Constraint("Equal", 0, 1))
sketch17.addConstraint(Sketcher.Constraint("Equal", 1, 2))
sketch17.addConstraint(Sketcher.Constraint("Symmetric", 0, 3, 1, 3, -2))
sketch17.addConstraint(Sketcher.Constraint("PointOnObject", 2, 3, -2))
sketch17.addConstraint(Sketcher.Constraint("Diameter", 0, Q("5.5 mm")))
sketch17.addConstraint(Sketcher.Constraint("DistanceY", 2, 3, -1, 1, Q("17.5 mm")))
sketch17.addConstraint(Sketcher.Constraint("DistanceY", -1, 1, 0, 3, Q("8.75 mm")))
sketch17.addConstraint(Sketcher.Constraint("DistanceX", 1, 3, 0, 3, Q("30.310889 mm")))
doc.recompute()
hole = body.newObject("PartDesign::Hole", "Hole")
hole.Profile = sketch17
hole.ThreadType = "None"
hole.Diameter = 5.5
hole.DepthType = "Dimension"
hole.Depth = 26.4
hole.DrillPoint = "Flat"
hole.Reversed = True

doc.recompute()
